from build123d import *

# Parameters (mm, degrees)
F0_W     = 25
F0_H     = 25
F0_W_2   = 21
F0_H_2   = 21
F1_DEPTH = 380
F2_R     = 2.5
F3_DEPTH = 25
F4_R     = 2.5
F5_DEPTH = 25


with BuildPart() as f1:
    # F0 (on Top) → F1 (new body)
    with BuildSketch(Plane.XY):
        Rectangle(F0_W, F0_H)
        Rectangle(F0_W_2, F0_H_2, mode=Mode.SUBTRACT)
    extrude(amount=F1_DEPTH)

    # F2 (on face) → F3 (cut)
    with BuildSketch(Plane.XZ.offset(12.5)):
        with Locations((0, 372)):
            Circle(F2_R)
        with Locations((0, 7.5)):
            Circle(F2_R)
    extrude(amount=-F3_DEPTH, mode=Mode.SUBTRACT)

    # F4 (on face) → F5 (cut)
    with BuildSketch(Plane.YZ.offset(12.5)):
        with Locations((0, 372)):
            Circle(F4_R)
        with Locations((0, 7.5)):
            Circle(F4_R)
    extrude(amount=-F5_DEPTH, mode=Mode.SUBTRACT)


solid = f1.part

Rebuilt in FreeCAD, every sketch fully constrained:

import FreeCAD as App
import Part
import Sketcher
from FreeCAD import Vector


def add_polygon(sketch, points):
    """Adds a closed chain of lines whose ends are joined by coincident constraints."""
    first, n = sketch.GeometryCount, len(points)
    for a, b in zip(points, points[1:] + points[:1]):
        sketch.addGeometry(Part.LineSegment(App.Vector(*a, 0), App.Vector(*b, 0)), False)
    for i in range(n):
        sketch.addConstraint(Sketcher.Constraint("Coincident", first + i, 2, first + (i + 1) % n, 1))

doc = App.newDocument("Part")
body = doc.addObject("PartDesign::Body", "Body")

# Sketch on XY plane
sketch1 = body.newObject("Sketcher::SketchObject", "Sketch")
sketch1.AttachmentSupport = (doc.getObject("XY_Plane"), [""])
sketch1.MapMode = "FlatFace"
add_polygon(sketch1, [(-12, 12), (-12, -12), (12, -12), (12, 12)])  # lines 0-3
add_polygon(sketch1, [(10, -10), (-10, -10), (-10, 10), (10, 10)])  # lines 4-7
sketch1.addConstraint([
    Sketcher.Constraint("Vertical", 0),
    Sketcher.Constraint("Horizontal", 1),
    Sketcher.Constraint("Vertical", 2),
    Sketcher.Constraint("Horizontal", 3),
    Sketcher.Constraint("Horizontal", 4),
    Sketcher.Constraint("Vertical", 5),
    Sketcher.Constraint("Horizontal", 6),
    Sketcher.Constraint("Vertical", 7),
    Sketcher.Constraint("Symmetric", 0, 2, 2, 2, -1, 1),
    Sketcher.Constraint("Symmetric", 4, 2, 6, 2, -1, 1),
    Sketcher.Constraint("Equal", 3, 0),
    Sketcher.Constraint("Equal", 6, 5),
    Sketcher.Constraint("DistanceX", 1, 1, 1, 2, 25.0),
    Sketcher.Constraint("DistanceX", 4, 2, 4, 1, 21.0),
])
pad1 = body.newObject("PartDesign::Pad", "Pad")
pad1.Profile = sketch1
pad1.Length = 380

# Sketch on XZ plane
sketch2 = body.newObject("Sketcher::SketchObject", "Sketch001")
sketch2.AttachmentSupport = (doc.getObject("XZ_Plane"), [""])
sketch2.MapMode = "FlatFace"
sketch2.AttachmentOffset = App.Placement(Vector(0, 0, 12.5), App.Rotation())
sketch2.addGeometry([
    Part.Circle(Vector(0, 372, 0), Vector(0, 0, 1), 2.5),
    Part.Circle(Vector(0, 7.5, 0), Vector(0, 0, 1), 2.5),
], False)
sketch2.addConstraint([
    Sketcher.Constraint("Equal", 0, 1),
    Sketcher.Constraint("PointOnObject", 0, 3, -2),
    Sketcher.Constraint("PointOnObject", 1, 3, -2),
    Sketcher.Constraint("Diameter", 0, 5.0),
    Sketcher.Constraint("DistanceY", -1, 1, 0, 3, 372.0),
    Sketcher.Constraint("DistanceY", -1, 1, 1, 3, 7.5),
])
pocket1 = body.newObject("PartDesign::Pocket", "Pocket")
pocket1.Profile = sketch2
pocket1.Length = 25

# Sketch on YZ plane
sketch3 = body.newObject("Sketcher::SketchObject", "Sketch002")
sketch3.AttachmentSupport = (doc.getObject("YZ_Plane"), [""])
sketch3.MapMode = "FlatFace"
sketch3.AttachmentOffset = App.Placement(Vector(0, 0, 12.5), App.Rotation())
sketch3.addGeometry([
    Part.Circle(Vector(0, 372, 0), Vector(0, 0, 1), 2.5),
    Part.Circle(Vector(0, 7.5, 0), Vector(0, 0, 1), 2.5),
], False)
sketch3.addConstraint([
    Sketcher.Constraint("Equal", 0, 1),
    Sketcher.Constraint("PointOnObject", 0, 3, -2),
    Sketcher.Constraint("PointOnObject", 1, 3, -2),
    Sketcher.Constraint("Diameter", 0, 5.0),
    Sketcher.Constraint("DistanceY", -1, 1, 0, 3, 372.0),
    Sketcher.Constraint("DistanceY", -1, 1, 1, 3, 7.5),
])
pocket2 = body.newObject("PartDesign::Pocket", "Pocket001")
pocket2.Profile = sketch3
pocket2.Length = 25

doc.recompute()
